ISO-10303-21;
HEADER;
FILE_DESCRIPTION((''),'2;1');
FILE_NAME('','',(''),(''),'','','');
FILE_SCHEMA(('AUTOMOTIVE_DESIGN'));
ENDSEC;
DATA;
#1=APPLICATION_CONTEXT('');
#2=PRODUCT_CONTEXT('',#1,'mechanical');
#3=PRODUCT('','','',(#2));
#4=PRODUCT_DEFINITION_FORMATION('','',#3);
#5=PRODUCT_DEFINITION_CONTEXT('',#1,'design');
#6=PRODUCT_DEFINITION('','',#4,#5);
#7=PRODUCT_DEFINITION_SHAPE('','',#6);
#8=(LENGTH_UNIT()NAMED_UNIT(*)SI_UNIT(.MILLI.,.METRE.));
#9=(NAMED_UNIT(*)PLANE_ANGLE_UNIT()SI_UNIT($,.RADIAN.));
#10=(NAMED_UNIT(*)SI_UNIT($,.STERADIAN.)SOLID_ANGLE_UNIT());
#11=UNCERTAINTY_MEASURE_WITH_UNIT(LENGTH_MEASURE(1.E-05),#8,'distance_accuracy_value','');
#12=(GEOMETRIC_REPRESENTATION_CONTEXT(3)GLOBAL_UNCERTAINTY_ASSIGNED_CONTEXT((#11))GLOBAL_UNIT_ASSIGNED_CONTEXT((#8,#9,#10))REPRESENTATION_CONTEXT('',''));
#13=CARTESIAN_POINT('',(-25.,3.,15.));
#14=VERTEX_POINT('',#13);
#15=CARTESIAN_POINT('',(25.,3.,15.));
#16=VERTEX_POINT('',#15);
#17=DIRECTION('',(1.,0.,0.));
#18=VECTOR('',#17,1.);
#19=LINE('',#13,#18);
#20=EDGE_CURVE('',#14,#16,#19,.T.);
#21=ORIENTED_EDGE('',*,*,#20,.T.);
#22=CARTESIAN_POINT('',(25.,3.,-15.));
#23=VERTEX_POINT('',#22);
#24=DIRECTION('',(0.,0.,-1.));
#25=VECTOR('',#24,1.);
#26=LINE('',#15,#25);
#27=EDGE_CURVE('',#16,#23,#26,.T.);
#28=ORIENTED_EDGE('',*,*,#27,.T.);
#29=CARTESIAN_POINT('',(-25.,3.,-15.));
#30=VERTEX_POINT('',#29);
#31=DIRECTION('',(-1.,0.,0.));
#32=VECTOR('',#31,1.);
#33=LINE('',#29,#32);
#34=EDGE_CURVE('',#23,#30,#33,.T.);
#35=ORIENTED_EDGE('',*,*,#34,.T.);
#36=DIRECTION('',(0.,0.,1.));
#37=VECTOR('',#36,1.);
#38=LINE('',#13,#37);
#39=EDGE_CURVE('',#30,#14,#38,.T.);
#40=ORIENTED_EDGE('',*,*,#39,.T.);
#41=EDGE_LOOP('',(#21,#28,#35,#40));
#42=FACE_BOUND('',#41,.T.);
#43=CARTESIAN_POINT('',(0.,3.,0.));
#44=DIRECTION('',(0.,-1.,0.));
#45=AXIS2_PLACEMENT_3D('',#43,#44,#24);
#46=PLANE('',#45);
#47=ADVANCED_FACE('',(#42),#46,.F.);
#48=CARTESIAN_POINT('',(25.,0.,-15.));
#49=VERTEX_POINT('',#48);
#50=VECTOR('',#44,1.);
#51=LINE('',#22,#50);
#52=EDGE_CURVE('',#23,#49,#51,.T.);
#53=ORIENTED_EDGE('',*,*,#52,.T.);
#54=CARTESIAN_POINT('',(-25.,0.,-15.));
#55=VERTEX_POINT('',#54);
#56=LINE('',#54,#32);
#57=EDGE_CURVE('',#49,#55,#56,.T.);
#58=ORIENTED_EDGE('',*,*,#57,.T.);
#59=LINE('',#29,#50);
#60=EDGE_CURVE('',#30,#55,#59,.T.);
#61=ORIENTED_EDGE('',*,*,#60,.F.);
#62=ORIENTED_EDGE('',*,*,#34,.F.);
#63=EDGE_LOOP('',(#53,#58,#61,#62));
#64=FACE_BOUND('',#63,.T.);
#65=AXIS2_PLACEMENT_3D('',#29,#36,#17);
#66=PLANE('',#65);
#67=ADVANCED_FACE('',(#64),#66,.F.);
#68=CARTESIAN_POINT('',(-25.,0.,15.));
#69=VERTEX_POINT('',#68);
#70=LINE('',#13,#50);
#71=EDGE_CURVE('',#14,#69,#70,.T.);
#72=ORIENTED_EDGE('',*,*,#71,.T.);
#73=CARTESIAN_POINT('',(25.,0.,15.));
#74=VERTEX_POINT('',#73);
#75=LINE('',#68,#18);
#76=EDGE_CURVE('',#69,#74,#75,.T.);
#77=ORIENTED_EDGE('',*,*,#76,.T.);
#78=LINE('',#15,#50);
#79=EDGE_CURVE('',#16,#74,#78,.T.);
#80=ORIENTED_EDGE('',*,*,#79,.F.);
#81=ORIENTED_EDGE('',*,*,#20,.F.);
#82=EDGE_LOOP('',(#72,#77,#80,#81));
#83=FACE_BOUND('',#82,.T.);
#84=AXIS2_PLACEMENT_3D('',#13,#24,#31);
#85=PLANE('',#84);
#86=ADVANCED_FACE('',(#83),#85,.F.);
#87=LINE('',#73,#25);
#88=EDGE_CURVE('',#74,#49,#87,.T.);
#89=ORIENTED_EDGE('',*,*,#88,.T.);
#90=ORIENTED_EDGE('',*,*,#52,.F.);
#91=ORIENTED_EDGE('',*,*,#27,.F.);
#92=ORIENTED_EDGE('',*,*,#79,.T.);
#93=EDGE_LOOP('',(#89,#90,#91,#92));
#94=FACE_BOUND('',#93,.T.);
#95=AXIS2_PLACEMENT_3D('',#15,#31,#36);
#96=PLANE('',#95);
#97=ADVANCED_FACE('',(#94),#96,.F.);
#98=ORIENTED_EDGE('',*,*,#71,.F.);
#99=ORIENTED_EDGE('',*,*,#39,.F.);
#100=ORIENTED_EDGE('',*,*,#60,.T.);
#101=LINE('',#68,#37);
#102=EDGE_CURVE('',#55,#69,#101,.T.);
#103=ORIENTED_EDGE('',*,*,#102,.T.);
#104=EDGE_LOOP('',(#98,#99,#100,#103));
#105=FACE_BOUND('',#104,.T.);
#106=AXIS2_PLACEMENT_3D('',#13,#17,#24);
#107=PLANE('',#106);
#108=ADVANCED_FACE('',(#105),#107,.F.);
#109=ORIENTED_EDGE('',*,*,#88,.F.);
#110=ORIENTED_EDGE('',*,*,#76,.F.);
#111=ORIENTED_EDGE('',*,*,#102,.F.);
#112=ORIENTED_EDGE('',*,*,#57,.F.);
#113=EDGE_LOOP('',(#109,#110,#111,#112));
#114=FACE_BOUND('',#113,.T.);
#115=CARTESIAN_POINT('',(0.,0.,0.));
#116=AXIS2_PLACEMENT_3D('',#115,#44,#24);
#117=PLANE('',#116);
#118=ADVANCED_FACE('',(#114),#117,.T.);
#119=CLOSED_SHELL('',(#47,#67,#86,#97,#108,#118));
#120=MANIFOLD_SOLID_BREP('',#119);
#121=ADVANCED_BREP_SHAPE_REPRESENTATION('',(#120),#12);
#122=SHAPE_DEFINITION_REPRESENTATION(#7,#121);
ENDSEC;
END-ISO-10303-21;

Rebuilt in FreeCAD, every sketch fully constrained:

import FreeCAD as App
import Part
import Sketcher

doc = App.newDocument("Part")
body = doc.addObject("PartDesign::Body", "Body")

# Sketch on XZ plane
sketch1 = body.newObject("Sketcher::SketchObject", "Sketch")
sketch1.AttachmentSupport = (doc.getObject("XZ_Plane"), [""])
sketch1.MapMode = "FlatFace"
sketch1.addGeometry([
    Part.LineSegment(App.Vector(-25, -15, 0), App.Vector(-25, 15, 0)),
    Part.LineSegment(App.Vector(-25, 15, 0), App.Vector(25, 15, 0)),
    Part.LineSegment(App.Vector(25, 15, 0), App.Vector(25, -15, 0)),
    Part.LineSegment(App.Vector(25, -15, 0), App.Vector(-25, -15, 0)),
], False)
sketch1.addConstraint([
    Sketcher.Constraint("Coincident", 0, 2, 1, 1),
    Sketcher.Constraint("Coincident", 1, 2, 2, 1),
    Sketcher.Constraint("Coincident", 2, 2, 3, 1),
    Sketcher.Constraint("Coincident", 3, 2, 0, 1),
    Sketcher.Constraint("Vertical", 0),
    Sketcher.Constraint("Horizontal", 1),
    Sketcher.Constraint("Vertical", 2),
    Sketcher.Constraint("Horizontal", 3),
    Sketcher.Constraint("Symmetric", 0, 2, 2, 2, -1, 1),
    Sketcher.Constraint("DistanceX", 1, 1, 1, 2, 50.0),
    Sketcher.Constraint("DistanceY", 0, 1, 0, 2, 30.0),
])
pad1 = body.newObject("PartDesign::Pad", "Pad")
pad1.Profile = sketch1
pad1.Length = 3
pad1.Reversed = True

doc.recompute()
